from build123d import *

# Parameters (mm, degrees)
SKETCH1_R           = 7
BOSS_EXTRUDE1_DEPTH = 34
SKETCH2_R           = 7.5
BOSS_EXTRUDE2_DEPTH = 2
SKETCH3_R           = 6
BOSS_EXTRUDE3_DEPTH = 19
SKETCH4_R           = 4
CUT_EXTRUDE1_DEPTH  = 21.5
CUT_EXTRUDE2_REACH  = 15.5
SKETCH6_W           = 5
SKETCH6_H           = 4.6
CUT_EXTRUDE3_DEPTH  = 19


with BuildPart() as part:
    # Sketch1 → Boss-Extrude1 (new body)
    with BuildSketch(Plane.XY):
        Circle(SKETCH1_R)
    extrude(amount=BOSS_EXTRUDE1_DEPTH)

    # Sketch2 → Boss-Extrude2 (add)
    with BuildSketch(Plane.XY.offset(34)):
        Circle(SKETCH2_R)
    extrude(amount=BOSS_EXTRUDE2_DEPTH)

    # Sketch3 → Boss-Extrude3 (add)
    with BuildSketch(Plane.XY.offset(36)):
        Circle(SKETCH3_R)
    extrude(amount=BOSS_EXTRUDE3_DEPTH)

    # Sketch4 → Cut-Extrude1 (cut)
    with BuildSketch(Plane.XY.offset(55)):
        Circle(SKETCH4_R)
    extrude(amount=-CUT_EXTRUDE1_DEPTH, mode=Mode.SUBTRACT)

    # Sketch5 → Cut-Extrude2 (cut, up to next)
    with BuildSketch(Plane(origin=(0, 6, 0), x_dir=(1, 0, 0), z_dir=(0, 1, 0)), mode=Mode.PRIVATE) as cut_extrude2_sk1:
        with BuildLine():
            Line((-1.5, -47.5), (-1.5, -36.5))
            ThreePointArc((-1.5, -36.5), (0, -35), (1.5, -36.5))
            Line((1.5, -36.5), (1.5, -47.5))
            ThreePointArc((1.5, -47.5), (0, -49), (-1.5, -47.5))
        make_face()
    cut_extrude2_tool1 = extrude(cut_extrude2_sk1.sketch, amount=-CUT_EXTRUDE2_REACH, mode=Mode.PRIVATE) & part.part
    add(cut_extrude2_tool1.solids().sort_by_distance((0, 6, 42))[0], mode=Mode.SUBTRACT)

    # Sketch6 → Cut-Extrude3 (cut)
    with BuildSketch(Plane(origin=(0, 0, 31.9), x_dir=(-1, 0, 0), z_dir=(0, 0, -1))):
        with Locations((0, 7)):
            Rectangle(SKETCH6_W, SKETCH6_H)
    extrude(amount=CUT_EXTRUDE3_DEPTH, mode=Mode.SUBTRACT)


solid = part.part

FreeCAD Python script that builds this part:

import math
import FreeCAD as App
import Part
import Sketcher
from FreeCAD import Vector


def add_polygon(sketch, points):
    """Adds a closed chain of lines whose ends are joined by coincident constraints."""
    first, n = sketch.GeometryCount, len(points)
    for a, b in zip(points, points[1:] + points[:1]):
        sketch.addGeometry(Part.LineSegment(App.Vector(*a, 0), App.Vector(*b, 0)), False)
    for i in range(n):
        sketch.addConstraint(Sketcher.Constraint("Coincident", first + i, 2, first + (i + 1) % n, 1))

doc = App.newDocument("Part")
body = doc.addObject("PartDesign::Body", "Body")

sketch1 = doc.addObject("Sketcher::SketchObject", "Sketch")
body.addObject(sketch1)
sketch1.AttachmentSupport = (doc.XY_Plane, [""])
sketch1.MapMode = "FlatFace"
sketch1.addGeometry(Part.Circle(Vector(0, 0, 0), Vector(0, 0, 1), 7), False)
sketch1.addConstraint([
    Sketcher.Constraint("Coincident", 0, 3, -1, 1),
    Sketcher.Constraint("Diameter", 0, 14.0),
])
pad1 = doc.addObject("PartDesign::Pad", "Pad")
body.addObject(pad1)
pad1.Profile = sketch1
pad1.Length = 34

sketch2 = doc.addObject("Sketcher::SketchObject", "Sketch001")
body.addObject(sketch2)
sketch2.AttachmentSupport = (doc.XY_Plane, [""])
sketch2.MapMode = "FlatFace"
sketch2.AttachmentOffset = App.Placement(Vector(0, 0, 34), App.Rotation())
sketch2.addGeometry(Part.Circle(Vector(0, 0, 0), Vector(0, 0, 1), 8), False)
sketch2.addConstraint([
    Sketcher.Constraint("Coincident", 0, 3, -1, 1),
    Sketcher.Constraint("Diameter", 0, 15.0),
])
pad2 = doc.addObject("PartDesign::Pad", "Pad001")
body.addObject(pad2)
pad2.Profile = sketch2
pad2.Length = 2

sketch3 = doc.addObject("Sketcher::SketchObject", "Sketch002")
body.addObject(sketch3)
sketch3.AttachmentSupport = (doc.XY_Plane, [""])
sketch3.MapMode = "FlatFace"
sketch3.AttachmentOffset = App.Placement(Vector(0, 0, 36), App.Rotation())
sketch3.addGeometry(Part.Circle(Vector(0, 0, 0), Vector(0, 0, 1), 6), False)
sketch3.addConstraint([
    Sketcher.Constraint("Coincident", 0, 3, -1, 1),
    Sketcher.Constraint("Diameter", 0, 12.0),
])
pad3 = doc.addObject("PartDesign::Pad", "Pad002")
body.addObject(pad3)
pad3.Profile = sketch3
pad3.Length = 19

sketch4 = doc.addObject("Sketcher::SketchObject", "Sketch003")
body.addObject(sketch4)
sketch4.AttachmentSupport = (doc.XY_Plane, [""])
sketch4.MapMode = "FlatFace"
sketch4.AttachmentOffset = App.Placement(Vector(0, 0, 55), App.Rotation())
sketch4.addGeometry(Part.Circle(Vector(0, 0, 0), Vector(0, 0, 1), 4), False)
sketch4.addConstraint([
    Sketcher.Constraint("Coincident", 0, 3, -1, 1),
    Sketcher.Constraint("Diameter", 0, 8.0),
])
pocket1 = doc.addObject("PartDesign::Pocket", "Pocket")
body.addObject(pocket1)
pocket1.Profile = sketch4
pocket1.Length = 21.5

sketch5 = doc.addObject("Sketcher::SketchObject", "Sketch004")
body.addObject(sketch5)
sketch5.AttachmentSupport = (doc.XZ_Plane, [""])
sketch5.MapMode = "FlatFace"
sketch5.AttachmentOffset = App.Placement(Vector(0, 0, -6), App.Rotation())
sketch5.addGeometry([
    Part.LineSegment(Vector(-1.5, 36.5, 0), Vector(-1.5, 47.5, 0)),
    Part.ArcOfCircle(Part.Circle(Vector(0, 47.5, 0), Vector(0, 0, 1), 1.5), math.radians(0), math.radians(180)),
    Part.LineSegment(Vector(1.5, 47.5, 0), Vector(1.5, 36.5, 0)),
    Part.ArcOfCircle(Part.Circle(Vector(0, 36.5, 0), Vector(0, 0, 1), 1.5), math.radians(180), math.radians(360)),
], False)
sketch5.addConstraint([
    Sketcher.Constraint("Tangent", 0, 2, 1, 2),
    Sketcher.Constraint("Tangent", 1, 1, 2, 1),
    Sketcher.Constraint("Tangent", 2, 2, 3, 2),
    Sketcher.Constraint("Tangent", 3, 1, 0, 1),
    Sketcher.Constraint("Vertical", 0),
    Sketcher.Constraint("Vertical", 2),
    Sketcher.Constraint("PointOnObject", 1, 3, -2),
    Sketcher.Constraint("Radius", 1, 1.5),
    Sketcher.Constraint("DistanceY", 0, 1, 0, 2, 11.0),
    Sketcher.Constraint("DistanceY", -1, 1, 1, 3, 47.5),
])
pocket2 = doc.addObject("PartDesign::Pocket", "Pocket001")
body.addObject(pocket2)
pocket2.Profile = sketch5
pocket2.Type = "UpToFirst"
pocket2.Reversed = True

sketch6 = doc.addObject("Sketcher::SketchObject", "Sketch005")
body.addObject(sketch6)
sketch6.AttachmentSupport = (doc.XY_Plane, [""])
sketch6.MapMode = "FlatFace"
sketch6.AttachmentOffset = App.Placement(Vector(0, 0, 31.9), App.Rotation())
add_polygon(sketch6, [(2.5, 9.3), (2.5, 4.7), (-2.5, 4.7), (-2.5, 9.3)])
sketch6.addConstraint([
    Sketcher.Constraint("Vertical", 0),
    Sketcher.Constraint("Horizontal", 1),
    Sketcher.Constraint("Vertical", 2),
    Sketcher.Constraint("Horizontal", 3),
    Sketcher.Constraint("DistanceX", 1, 2, 1, 1, 5.0),
    Sketcher.Constraint("DistanceY", 0, 2, 0, 1, 4.6),
    Sketcher.Constraint("DistanceX", -1, 1, 0, 2, 2.5),
    Sketcher.Constraint("DistanceY", -1, 1, 0, 2, 4.7),
])
pocket3 = doc.addObject("PartDesign::Pocket", "Pocket002")
body.addObject(pocket3)
pocket3.Profile = sketch6
pocket3.Length = 19

doc.recompute()
